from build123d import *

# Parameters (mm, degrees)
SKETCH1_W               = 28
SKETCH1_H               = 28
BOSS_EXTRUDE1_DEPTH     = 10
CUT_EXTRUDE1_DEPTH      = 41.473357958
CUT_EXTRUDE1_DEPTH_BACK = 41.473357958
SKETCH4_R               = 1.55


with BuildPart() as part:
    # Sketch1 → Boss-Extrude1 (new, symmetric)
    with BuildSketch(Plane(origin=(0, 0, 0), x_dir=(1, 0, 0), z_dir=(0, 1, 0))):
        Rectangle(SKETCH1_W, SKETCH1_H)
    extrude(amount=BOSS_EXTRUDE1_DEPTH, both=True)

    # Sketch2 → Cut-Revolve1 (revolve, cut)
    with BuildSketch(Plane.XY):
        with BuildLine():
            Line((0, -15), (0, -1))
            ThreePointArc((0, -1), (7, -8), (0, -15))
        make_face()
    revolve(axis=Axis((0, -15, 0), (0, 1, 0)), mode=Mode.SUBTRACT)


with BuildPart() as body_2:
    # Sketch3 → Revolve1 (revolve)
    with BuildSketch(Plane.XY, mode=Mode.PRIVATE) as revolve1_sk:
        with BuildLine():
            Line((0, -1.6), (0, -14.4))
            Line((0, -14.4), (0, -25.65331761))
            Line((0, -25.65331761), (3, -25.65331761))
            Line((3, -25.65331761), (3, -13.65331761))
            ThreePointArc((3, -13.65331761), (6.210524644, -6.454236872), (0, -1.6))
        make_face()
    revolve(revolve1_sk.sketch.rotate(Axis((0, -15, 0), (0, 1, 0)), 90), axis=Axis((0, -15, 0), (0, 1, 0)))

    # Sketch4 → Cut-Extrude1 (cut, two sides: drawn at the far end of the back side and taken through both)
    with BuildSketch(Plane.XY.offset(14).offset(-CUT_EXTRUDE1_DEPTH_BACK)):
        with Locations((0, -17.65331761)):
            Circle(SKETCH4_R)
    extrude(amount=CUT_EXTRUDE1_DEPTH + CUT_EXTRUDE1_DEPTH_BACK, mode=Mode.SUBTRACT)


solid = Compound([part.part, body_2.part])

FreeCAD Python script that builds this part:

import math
import FreeCAD as App
import Part
import Sketcher

doc = App.newDocument("Part")
body = doc.addObject("PartDesign::Body", "Body")

# Sketch on XZ plane
sketch1 = body.newObject("Sketcher::SketchObject", "Sketch")
sketch1.AttachmentSupport = (doc.getObject("XZ_Plane"), [""])
sketch1.MapMode = "FlatFace"
sketch1.addGeometry([
    Part.LineSegment(App.Vector(-14, -14, 0), App.Vector(-14, 14, 0)),
    Part.LineSegment(App.Vector(-14, 14, 0), App.Vector(14, 14, 0)),
    Part.LineSegment(App.Vector(14, 14, 0), App.Vector(14, -14, 0)),
    Part.LineSegment(App.Vector(14, -14, 0), App.Vector(-14, -14, 0)),
], False)
sketch1.addConstraint([
    Sketcher.Constraint("Coincident", 0, 2, 1, 1),
    Sketcher.Constraint("Coincident", 1, 2, 2, 1),
    Sketcher.Constraint("Coincident", 2, 2, 3, 1),
    Sketcher.Constraint("Coincident", 3, 2, 0, 1),
    Sketcher.Constraint("Vertical", 0),
    Sketcher.Constraint("Horizontal", 1),
    Sketcher.Constraint("Vertical", 2),
    Sketcher.Constraint("Horizontal", 3),
    Sketcher.Constraint("Symmetric", 0, 2, 2, 2, -1, 1),
    Sketcher.Constraint("Equal", 3, 0),
    Sketcher.Constraint("DistanceX", 1, 1, 1, 2, 28.0),
])
pad1 = body.newObject("PartDesign::Pad", "Pad")
pad1.Profile = sketch1
pad1.Length = 20
pad1.Midplane = True

# Sketch on XY plane
sketch2 = body.newObject("Sketcher::SketchObject", "Sketch001")
sketch2.AttachmentSupport = (doc.getObject("XY_Plane"), [""])
sketch2.MapMode = "FlatFace"
sketch2.addGeometry([
    Part.LineSegment(App.Vector(0, -1, 0), App.Vector(0, -15, 0)),
    Part.ArcOfCircle(Part.Circle(App.Vector(0, -8, 0), App.Vector(0, 0, 1), 7), math.radians(-90), math.radians(90)),
], False)
sketch2.addConstraint([
    Sketcher.Constraint("Coincident", 0, 1, 1, 2),
    Sketcher.Constraint("Coincident", 1, 1, 0, 2),
    Sketcher.Constraint("Vertical", 0),
    Sketcher.Constraint("PointOnObject", 1, 3, -2),
    Sketcher.Constraint("PointOnObject", 0, 1, -2),
    Sketcher.Constraint("Radius", 1, 7.0),
    Sketcher.Constraint("DistanceY", 1, 3, -1, 1, 8.0),
])
groove = body.newObject("PartDesign::Groove", "Groove")
groove.Profile = sketch2
groove.ReferenceAxis = (sketch2, ["V_Axis"])
groove.Angle = 360
body2 = doc.addObject("PartDesign::Body", "Body001")

# Sketch on XY plane
sketch3 = body2.newObject("Sketcher::SketchObject", "Sketch002")
sketch3.AttachmentSupport = (doc.getObject("XY_Plane001"), [""])
sketch3.MapMode = "FlatFace"
sketch3.addGeometry([
    Part.LineSegment(App.Vector(0, -1.6, 0), App.Vector(0, -25.7, 0)),
    Part.LineSegment(App.Vector(0, -25.7, 0), App.Vector(3, -25.7, 0)),
    Part.LineSegment(App.Vector(3, -25.7, 0), App.Vector(3, -13.7, 0)),
    Part.ArcOfCircle(Part.Circle(App.Vector(0, -8, 0), App.Vector(0, 0, 1), 6.4), math.radians(-62), math.radians(90)),
], False)
sketch3.addConstraint([
    Sketcher.Constraint("Coincident", 0, 2, 1, 1),
    Sketcher.Constraint("Coincident", 1, 2, 2, 1),
    Sketcher.Constraint("Coincident", 2, 2, 3, 1),
    Sketcher.Constraint("Coincident", 3, 2, 0, 1),
    Sketcher.Constraint("Vertical", 0),
    Sketcher.Constraint("Horizontal", 1),
    Sketcher.Constraint("Vertical", 2),
    Sketcher.Constraint("PointOnObject", 3, 3, -2),
    Sketcher.Constraint("PointOnObject", 0, 2, -2),
    Sketcher.Constraint("Radius", 3, 6.4),
    Sketcher.Constraint("DistanceX", 1, 1, 1, 2, 3.0),
    Sketcher.Constraint("DistanceY", 2, 1, 2, 2, 12.0),
    Sketcher.Constraint("DistanceY", 3, 3, -1, 1, 8.0),
])
revolution = body2.newObject("PartDesign::Revolution", "Revolution")
revolution.Profile = sketch3
revolution.ReferenceAxis = (sketch3, ["V_Axis"])
revolution.Angle = 360

# Sketch on XY plane
sketch4 = body2.newObject("Sketcher::SketchObject", "Sketch003")
sketch4.AttachmentSupport = (doc.getObject("XY_Plane001"), [""])
sketch4.MapMode = "FlatFace"
sketch4.AttachmentOffset = App.Placement(App.Vector(0, 0, 14), App.Rotation())
sketch4.addGeometry(Part.Circle(App.Vector(0, -17.7, 0), App.Vector(0, 0, 1), 1.6), False)
sketch4.addConstraint([
    Sketcher.Constraint("PointOnObject", 0, 3, -2),
    Sketcher.Constraint("Diameter", 0, 3.1),
    Sketcher.Constraint("DistanceY", 0, 3, -1, 1, 17.653318),
])
pocket1 = body2.newObject("PartDesign::Pocket", "Pocket")
pocket1.Profile = sketch4
pocket1.Type = "ThroughAll"
pocket1.Midplane = True

doc.recompute()
